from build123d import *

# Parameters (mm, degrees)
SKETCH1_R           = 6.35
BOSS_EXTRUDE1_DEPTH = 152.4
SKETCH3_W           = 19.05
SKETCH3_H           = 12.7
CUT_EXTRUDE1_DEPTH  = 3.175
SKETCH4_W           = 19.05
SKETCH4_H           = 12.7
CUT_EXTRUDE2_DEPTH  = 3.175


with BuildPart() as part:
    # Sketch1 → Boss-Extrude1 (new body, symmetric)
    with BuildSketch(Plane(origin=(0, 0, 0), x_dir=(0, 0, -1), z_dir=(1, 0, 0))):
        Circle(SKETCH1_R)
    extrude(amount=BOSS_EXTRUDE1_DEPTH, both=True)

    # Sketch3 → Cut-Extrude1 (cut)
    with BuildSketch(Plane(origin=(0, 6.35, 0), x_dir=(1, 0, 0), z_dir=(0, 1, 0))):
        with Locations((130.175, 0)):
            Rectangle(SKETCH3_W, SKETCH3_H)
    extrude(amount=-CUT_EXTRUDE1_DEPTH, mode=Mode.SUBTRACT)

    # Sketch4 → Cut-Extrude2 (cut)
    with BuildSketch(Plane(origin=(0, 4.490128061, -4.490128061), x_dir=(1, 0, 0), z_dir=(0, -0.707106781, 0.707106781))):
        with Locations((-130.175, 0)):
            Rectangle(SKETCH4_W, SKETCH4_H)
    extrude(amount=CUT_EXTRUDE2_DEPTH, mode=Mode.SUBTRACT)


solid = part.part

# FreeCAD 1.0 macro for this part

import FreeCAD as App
import Part
import Sketcher
from FreeCAD import Vector
Q = App.Units.Quantity


def add_polygon(sketch, points):
    """Adds a closed chain of lines whose ends are joined by coincident constraints."""
    first, n = sketch.GeometryCount, len(points)
    for a, b in zip(points, points[1:] + points[:1]):
        sketch.addGeometry(Part.LineSegment(App.Vector(*a, 0), App.Vector(*b, 0)), False)
    for i in range(n):
        sketch.addConstraint(Sketcher.Constraint("Coincident", first + i, 2, first + (i + 1) % n, 1))

doc = App.newDocument("Part")
params = doc.addObject("Spreadsheet::Sheet", "Params")
for row, (alias, value) in enumerate([
    ("sketch1_diameter", "0.5 in"),
    ("pad1_length", "12 in"),
    ("sketch2_height", "0.5 in"),
    ("sketch2_width", "0.75 in"),
    ("pocket1_length", "0.125 in"),
    ("sketch3_height", "0.5 in"),
    ("sketch3_width", "0.75 in"),
    ("pocket2_length", "0.125 in"),
], start=1):
    params.set(f"A{row}", alias)
    params.set(f"B{row}", "=" + value)
    params.setAlias(f"B{row}", alias)

body = doc.addObject("PartDesign::Body", "Body")

# Sketch on YZ plane
sketch1 = doc.addObject("Sketcher::SketchObject", "Sketch")
body.addObject(sketch1)
sketch1.AttachmentSupport = (doc.YZ_Plane, [""])
sketch1.MapMode = "FlatFace"
sketch1.addGeometry(Part.Circle(Vector(0, 0, 0), Vector(0, 0, 1), 6), False)
sketch1.addConstraint([
    Sketcher.Constraint("Coincident", 0, 3, -1, 1),
    Sketcher.Constraint("Diameter", 0, Q("0.5 in")),
])
sketch1.setExpression("Constraints[1]", "Params.sketch1_diameter")
pad1 = doc.addObject("PartDesign::Pad", "Pad")
body.addObject(pad1)
pad1.Profile = sketch1
pad1.setExpression("Length", "Params.pad1_length")
pad1.Midplane = True

# Sketch on XZ plane
sketch2 = doc.addObject("Sketcher::SketchObject", "Sketch001")
body.addObject(sketch2)
sketch2.AttachmentSupport = (doc.XZ_Plane, [""])
sketch2.MapMode = "FlatFace"
sketch2.AttachmentOffset = App.Placement(Vector(0, 0, -0.25 * 25.4), App.Rotation())
add_polygon(sketch2, [(121, -6), (121, 6), (140, 6), (140, -6)])  # lines 0-3
sketch2.addConstraint([
    Sketcher.Constraint("Vertical", 0),
    Sketcher.Constraint("Horizontal", 1),
    Sketcher.Constraint("Vertical", 2),
    Sketcher.Constraint("Horizontal", 3),
    Sketcher.Constraint("DistanceY", 0, 1, 0, 2, Q("0.5 in")),
    Sketcher.Constraint("DistanceX", 1, 1, 1, 2, Q("0.75 in")),
    Sketcher.Constraint("DistanceX", -1, 1, 1, 2, Q("5.5 in")),
    Sketcher.Constraint("DistanceY", -1, 1, 0, 2, Q("0.25 in")),
])
sketch2.setExpression("Constraints[8]", "Params.sketch2_height")
sketch2.setExpression("Constraints[9]", "Params.sketch2_width")
pocket1 = doc.addObject("PartDesign::Pocket", "Pocket")
body.addObject(pocket1)
pocket1.Profile = sketch2
pocket1.setExpression("Length", "Params.pocket1_length")
pocket1.Reversed = True

# Sketch on an angled plane
sketch3 = doc.addObject("Sketcher::SketchObject", "Sketch002")
body.addObject(sketch3)
sketch3.Placement = App.Placement(Vector(0, 4.490128, -4.490128), App.Rotation(Vector(1, 0, 0), Vector(0, 0.707106781, 0.707106781), Vector(0, -0.707106781, 0.707106781), "ZXY"))
add_polygon(sketch3, [(-140, 6), (-140, -6), (-121, -6), (-121, 6)])  # lines 0-3
sketch3.addConstraint([
    Sketcher.Constraint("Vertical", 0),
    Sketcher.Constraint("Horizontal", 1),
    Sketcher.Constraint("Vertical", 2),
    Sketcher.Constraint("Horizontal", 3),
    Sketcher.Constraint("DistanceY", 0, 2, 0, 1, Q("0.5 in")),
    Sketcher.Constraint("DistanceX", 1, 1, 1, 2, Q("0.75 in")),
    Sketcher.Constraint("DistanceX", 0, 2, -1, 1, Q("5.5 in")),
    Sketcher.Constraint("DistanceY", 0, 2, -1, 1, Q("0.25 in")),
])
sketch3.setExpression("Constraints[8]", "Params.sketch3_height")
sketch3.setExpression("Constraints[9]", "Params.sketch3_width")
pocket2 = doc.addObject("PartDesign::Pocket", "Pocket001")
body.addObject(pocket2)
pocket2.Profile = sketch3
pocket2.setExpression("Length", "Params.pocket2_length")
pocket2.Reversed = True

doc.recompute()
